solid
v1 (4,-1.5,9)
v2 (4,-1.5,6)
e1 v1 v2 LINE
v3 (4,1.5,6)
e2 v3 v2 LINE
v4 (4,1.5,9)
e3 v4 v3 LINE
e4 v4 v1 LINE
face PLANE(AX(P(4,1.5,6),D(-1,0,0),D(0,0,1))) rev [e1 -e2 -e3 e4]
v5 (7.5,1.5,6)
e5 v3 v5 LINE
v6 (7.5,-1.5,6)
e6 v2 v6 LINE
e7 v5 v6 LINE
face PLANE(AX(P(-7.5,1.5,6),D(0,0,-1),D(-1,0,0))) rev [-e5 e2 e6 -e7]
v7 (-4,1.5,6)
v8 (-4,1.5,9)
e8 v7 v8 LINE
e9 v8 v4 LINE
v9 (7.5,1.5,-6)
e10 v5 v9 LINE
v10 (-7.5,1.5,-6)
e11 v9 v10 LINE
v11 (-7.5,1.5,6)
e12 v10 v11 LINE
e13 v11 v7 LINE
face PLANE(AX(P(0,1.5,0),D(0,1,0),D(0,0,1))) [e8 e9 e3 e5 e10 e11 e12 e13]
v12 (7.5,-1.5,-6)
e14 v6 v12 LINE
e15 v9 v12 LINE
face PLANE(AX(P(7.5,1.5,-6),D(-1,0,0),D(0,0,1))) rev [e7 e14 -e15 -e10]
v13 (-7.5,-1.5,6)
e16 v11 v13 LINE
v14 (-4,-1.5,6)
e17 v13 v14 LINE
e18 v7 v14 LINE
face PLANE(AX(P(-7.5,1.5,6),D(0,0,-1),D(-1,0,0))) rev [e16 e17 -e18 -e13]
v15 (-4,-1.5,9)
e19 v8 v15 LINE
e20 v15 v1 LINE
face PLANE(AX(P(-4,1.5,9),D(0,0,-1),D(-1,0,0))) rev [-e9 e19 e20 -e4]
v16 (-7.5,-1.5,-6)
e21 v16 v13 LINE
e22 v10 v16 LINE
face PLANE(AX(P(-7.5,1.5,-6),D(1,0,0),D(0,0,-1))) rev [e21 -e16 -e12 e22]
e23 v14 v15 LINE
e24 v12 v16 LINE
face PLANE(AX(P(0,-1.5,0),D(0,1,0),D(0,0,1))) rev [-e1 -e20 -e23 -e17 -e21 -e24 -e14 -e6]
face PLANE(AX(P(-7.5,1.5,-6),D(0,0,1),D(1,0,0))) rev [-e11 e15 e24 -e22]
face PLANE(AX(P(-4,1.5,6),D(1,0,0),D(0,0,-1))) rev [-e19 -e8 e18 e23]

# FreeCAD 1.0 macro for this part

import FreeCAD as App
import Part
import Sketcher

V = App.Vector


def add_polygon(sketch, points):
    """Adds a closed chain of lines whose ends are joined by coincident constraints."""
    first, n = sketch.GeometryCount, len(points)
    for a, b in zip(points, points[1:] + points[:1]):
        sketch.addGeometry(Part.LineSegment(App.Vector(*a, 0), App.Vector(*b, 0)), False)
    for i in range(n):
        sketch.addConstraint(Sketcher.Constraint("Coincident", first + i, 2, first + (i + 1) % n, 1))

doc = App.newDocument("Part")
params = doc.addObject("Spreadsheet::Sheet", "Params")
for row, (alias, value) in enumerate([
    ("sketch1_width", "15 mm"),
    ("sketch1_height", "12 mm"),
    ("pad1_length", "3 mm"),
    ("sketch2_width", "8 mm"),
    ("sketch2_height", "3 mm"),
    ("pad2_length", "3 mm"),
], start=1):
    params.set(f"A{row}", alias)
    params.set(f"B{row}", "=" + value)
    params.setAlias(f"B{row}", alias)

body = doc.addObject("PartDesign::Body", "Body")

# Sketch on XZ plane
sketch1 = doc.addObject("Sketcher::SketchObject", "Sketch")
body.addObject(sketch1)
sketch1.AttachmentSupport = (doc.XZ_Plane, [""])
sketch1.MapMode = "FlatFace"
add_polygon(sketch1, [(-8, -6), (-8, 6), (8, 6), (8, -6)])  # lines 0-3
sketch1.addConstraint([
    Sketcher.Constraint("Vertical", 0),
    Sketcher.Constraint("Horizontal", 1),
    Sketcher.Constraint("Vertical", 2),
    Sketcher.Constraint("Horizontal", 3),
    Sketcher.Constraint("Symmetric", 0, 2, 2, 2, -1, 1),
    Sketcher.Constraint("DistanceX", 1, 1, 1, 2, 15.0),
    Sketcher.Constraint("DistanceY", 0, 1, 0, 2, 12.0),
])
sketch1.setExpression("Constraints[9]", "Params.sketch1_width")
sketch1.setExpression("Constraints[10]", "Params.sketch1_height")
pad1 = doc.addObject("PartDesign::Pad", "Pad")
body.addObject(pad1)
pad1.Profile = sketch1
pad1.setExpression("Length", "Params.pad1_length")
pad1.Midplane = True

# Sketch on XZ plane
sketch2 = doc.addObject("Sketcher::SketchObject", "Sketch001")
body.addObject(sketch2)
sketch2.AttachmentSupport = (doc.XZ_Plane, [""])
sketch2.MapMode = "FlatFace"
add_polygon(sketch2, [(-4, 6), (-4, 9), (4, 9), (4, 6)])  # lines 0-3
sketch2.addConstraint([
    Sketcher.Constraint("Vertical", 0),
    Sketcher.Constraint("Horizontal", 1),
    Sketcher.Constraint("Vertical", 2),
    Sketcher.Constraint("Horizontal", 3),
    Sketcher.Constraint("DistanceX", 1, 1, 1, 2, 8.0),
    Sketcher.Constraint("DistanceY", 0, 1, 0, 2, 3.0),
    Sketcher.Constraint("DistanceX", 0, 2, -1, 1, 4.0),
    Sketcher.Constraint("DistanceY", -1, 1, 0, 2, 9.0),
])
sketch2.setExpression("Constraints[8]", "Params.sketch2_width")
sketch2.setExpression("Constraints[9]", "Params.sketch2_height")
pad2 = doc.addObject("PartDesign::Pad", "Pad001")
body.addObject(pad2)
pad2.Profile = sketch2
pad2.setExpression("Length", "Params.pad2_length")
pad2.Midplane = True

doc.recompute()
